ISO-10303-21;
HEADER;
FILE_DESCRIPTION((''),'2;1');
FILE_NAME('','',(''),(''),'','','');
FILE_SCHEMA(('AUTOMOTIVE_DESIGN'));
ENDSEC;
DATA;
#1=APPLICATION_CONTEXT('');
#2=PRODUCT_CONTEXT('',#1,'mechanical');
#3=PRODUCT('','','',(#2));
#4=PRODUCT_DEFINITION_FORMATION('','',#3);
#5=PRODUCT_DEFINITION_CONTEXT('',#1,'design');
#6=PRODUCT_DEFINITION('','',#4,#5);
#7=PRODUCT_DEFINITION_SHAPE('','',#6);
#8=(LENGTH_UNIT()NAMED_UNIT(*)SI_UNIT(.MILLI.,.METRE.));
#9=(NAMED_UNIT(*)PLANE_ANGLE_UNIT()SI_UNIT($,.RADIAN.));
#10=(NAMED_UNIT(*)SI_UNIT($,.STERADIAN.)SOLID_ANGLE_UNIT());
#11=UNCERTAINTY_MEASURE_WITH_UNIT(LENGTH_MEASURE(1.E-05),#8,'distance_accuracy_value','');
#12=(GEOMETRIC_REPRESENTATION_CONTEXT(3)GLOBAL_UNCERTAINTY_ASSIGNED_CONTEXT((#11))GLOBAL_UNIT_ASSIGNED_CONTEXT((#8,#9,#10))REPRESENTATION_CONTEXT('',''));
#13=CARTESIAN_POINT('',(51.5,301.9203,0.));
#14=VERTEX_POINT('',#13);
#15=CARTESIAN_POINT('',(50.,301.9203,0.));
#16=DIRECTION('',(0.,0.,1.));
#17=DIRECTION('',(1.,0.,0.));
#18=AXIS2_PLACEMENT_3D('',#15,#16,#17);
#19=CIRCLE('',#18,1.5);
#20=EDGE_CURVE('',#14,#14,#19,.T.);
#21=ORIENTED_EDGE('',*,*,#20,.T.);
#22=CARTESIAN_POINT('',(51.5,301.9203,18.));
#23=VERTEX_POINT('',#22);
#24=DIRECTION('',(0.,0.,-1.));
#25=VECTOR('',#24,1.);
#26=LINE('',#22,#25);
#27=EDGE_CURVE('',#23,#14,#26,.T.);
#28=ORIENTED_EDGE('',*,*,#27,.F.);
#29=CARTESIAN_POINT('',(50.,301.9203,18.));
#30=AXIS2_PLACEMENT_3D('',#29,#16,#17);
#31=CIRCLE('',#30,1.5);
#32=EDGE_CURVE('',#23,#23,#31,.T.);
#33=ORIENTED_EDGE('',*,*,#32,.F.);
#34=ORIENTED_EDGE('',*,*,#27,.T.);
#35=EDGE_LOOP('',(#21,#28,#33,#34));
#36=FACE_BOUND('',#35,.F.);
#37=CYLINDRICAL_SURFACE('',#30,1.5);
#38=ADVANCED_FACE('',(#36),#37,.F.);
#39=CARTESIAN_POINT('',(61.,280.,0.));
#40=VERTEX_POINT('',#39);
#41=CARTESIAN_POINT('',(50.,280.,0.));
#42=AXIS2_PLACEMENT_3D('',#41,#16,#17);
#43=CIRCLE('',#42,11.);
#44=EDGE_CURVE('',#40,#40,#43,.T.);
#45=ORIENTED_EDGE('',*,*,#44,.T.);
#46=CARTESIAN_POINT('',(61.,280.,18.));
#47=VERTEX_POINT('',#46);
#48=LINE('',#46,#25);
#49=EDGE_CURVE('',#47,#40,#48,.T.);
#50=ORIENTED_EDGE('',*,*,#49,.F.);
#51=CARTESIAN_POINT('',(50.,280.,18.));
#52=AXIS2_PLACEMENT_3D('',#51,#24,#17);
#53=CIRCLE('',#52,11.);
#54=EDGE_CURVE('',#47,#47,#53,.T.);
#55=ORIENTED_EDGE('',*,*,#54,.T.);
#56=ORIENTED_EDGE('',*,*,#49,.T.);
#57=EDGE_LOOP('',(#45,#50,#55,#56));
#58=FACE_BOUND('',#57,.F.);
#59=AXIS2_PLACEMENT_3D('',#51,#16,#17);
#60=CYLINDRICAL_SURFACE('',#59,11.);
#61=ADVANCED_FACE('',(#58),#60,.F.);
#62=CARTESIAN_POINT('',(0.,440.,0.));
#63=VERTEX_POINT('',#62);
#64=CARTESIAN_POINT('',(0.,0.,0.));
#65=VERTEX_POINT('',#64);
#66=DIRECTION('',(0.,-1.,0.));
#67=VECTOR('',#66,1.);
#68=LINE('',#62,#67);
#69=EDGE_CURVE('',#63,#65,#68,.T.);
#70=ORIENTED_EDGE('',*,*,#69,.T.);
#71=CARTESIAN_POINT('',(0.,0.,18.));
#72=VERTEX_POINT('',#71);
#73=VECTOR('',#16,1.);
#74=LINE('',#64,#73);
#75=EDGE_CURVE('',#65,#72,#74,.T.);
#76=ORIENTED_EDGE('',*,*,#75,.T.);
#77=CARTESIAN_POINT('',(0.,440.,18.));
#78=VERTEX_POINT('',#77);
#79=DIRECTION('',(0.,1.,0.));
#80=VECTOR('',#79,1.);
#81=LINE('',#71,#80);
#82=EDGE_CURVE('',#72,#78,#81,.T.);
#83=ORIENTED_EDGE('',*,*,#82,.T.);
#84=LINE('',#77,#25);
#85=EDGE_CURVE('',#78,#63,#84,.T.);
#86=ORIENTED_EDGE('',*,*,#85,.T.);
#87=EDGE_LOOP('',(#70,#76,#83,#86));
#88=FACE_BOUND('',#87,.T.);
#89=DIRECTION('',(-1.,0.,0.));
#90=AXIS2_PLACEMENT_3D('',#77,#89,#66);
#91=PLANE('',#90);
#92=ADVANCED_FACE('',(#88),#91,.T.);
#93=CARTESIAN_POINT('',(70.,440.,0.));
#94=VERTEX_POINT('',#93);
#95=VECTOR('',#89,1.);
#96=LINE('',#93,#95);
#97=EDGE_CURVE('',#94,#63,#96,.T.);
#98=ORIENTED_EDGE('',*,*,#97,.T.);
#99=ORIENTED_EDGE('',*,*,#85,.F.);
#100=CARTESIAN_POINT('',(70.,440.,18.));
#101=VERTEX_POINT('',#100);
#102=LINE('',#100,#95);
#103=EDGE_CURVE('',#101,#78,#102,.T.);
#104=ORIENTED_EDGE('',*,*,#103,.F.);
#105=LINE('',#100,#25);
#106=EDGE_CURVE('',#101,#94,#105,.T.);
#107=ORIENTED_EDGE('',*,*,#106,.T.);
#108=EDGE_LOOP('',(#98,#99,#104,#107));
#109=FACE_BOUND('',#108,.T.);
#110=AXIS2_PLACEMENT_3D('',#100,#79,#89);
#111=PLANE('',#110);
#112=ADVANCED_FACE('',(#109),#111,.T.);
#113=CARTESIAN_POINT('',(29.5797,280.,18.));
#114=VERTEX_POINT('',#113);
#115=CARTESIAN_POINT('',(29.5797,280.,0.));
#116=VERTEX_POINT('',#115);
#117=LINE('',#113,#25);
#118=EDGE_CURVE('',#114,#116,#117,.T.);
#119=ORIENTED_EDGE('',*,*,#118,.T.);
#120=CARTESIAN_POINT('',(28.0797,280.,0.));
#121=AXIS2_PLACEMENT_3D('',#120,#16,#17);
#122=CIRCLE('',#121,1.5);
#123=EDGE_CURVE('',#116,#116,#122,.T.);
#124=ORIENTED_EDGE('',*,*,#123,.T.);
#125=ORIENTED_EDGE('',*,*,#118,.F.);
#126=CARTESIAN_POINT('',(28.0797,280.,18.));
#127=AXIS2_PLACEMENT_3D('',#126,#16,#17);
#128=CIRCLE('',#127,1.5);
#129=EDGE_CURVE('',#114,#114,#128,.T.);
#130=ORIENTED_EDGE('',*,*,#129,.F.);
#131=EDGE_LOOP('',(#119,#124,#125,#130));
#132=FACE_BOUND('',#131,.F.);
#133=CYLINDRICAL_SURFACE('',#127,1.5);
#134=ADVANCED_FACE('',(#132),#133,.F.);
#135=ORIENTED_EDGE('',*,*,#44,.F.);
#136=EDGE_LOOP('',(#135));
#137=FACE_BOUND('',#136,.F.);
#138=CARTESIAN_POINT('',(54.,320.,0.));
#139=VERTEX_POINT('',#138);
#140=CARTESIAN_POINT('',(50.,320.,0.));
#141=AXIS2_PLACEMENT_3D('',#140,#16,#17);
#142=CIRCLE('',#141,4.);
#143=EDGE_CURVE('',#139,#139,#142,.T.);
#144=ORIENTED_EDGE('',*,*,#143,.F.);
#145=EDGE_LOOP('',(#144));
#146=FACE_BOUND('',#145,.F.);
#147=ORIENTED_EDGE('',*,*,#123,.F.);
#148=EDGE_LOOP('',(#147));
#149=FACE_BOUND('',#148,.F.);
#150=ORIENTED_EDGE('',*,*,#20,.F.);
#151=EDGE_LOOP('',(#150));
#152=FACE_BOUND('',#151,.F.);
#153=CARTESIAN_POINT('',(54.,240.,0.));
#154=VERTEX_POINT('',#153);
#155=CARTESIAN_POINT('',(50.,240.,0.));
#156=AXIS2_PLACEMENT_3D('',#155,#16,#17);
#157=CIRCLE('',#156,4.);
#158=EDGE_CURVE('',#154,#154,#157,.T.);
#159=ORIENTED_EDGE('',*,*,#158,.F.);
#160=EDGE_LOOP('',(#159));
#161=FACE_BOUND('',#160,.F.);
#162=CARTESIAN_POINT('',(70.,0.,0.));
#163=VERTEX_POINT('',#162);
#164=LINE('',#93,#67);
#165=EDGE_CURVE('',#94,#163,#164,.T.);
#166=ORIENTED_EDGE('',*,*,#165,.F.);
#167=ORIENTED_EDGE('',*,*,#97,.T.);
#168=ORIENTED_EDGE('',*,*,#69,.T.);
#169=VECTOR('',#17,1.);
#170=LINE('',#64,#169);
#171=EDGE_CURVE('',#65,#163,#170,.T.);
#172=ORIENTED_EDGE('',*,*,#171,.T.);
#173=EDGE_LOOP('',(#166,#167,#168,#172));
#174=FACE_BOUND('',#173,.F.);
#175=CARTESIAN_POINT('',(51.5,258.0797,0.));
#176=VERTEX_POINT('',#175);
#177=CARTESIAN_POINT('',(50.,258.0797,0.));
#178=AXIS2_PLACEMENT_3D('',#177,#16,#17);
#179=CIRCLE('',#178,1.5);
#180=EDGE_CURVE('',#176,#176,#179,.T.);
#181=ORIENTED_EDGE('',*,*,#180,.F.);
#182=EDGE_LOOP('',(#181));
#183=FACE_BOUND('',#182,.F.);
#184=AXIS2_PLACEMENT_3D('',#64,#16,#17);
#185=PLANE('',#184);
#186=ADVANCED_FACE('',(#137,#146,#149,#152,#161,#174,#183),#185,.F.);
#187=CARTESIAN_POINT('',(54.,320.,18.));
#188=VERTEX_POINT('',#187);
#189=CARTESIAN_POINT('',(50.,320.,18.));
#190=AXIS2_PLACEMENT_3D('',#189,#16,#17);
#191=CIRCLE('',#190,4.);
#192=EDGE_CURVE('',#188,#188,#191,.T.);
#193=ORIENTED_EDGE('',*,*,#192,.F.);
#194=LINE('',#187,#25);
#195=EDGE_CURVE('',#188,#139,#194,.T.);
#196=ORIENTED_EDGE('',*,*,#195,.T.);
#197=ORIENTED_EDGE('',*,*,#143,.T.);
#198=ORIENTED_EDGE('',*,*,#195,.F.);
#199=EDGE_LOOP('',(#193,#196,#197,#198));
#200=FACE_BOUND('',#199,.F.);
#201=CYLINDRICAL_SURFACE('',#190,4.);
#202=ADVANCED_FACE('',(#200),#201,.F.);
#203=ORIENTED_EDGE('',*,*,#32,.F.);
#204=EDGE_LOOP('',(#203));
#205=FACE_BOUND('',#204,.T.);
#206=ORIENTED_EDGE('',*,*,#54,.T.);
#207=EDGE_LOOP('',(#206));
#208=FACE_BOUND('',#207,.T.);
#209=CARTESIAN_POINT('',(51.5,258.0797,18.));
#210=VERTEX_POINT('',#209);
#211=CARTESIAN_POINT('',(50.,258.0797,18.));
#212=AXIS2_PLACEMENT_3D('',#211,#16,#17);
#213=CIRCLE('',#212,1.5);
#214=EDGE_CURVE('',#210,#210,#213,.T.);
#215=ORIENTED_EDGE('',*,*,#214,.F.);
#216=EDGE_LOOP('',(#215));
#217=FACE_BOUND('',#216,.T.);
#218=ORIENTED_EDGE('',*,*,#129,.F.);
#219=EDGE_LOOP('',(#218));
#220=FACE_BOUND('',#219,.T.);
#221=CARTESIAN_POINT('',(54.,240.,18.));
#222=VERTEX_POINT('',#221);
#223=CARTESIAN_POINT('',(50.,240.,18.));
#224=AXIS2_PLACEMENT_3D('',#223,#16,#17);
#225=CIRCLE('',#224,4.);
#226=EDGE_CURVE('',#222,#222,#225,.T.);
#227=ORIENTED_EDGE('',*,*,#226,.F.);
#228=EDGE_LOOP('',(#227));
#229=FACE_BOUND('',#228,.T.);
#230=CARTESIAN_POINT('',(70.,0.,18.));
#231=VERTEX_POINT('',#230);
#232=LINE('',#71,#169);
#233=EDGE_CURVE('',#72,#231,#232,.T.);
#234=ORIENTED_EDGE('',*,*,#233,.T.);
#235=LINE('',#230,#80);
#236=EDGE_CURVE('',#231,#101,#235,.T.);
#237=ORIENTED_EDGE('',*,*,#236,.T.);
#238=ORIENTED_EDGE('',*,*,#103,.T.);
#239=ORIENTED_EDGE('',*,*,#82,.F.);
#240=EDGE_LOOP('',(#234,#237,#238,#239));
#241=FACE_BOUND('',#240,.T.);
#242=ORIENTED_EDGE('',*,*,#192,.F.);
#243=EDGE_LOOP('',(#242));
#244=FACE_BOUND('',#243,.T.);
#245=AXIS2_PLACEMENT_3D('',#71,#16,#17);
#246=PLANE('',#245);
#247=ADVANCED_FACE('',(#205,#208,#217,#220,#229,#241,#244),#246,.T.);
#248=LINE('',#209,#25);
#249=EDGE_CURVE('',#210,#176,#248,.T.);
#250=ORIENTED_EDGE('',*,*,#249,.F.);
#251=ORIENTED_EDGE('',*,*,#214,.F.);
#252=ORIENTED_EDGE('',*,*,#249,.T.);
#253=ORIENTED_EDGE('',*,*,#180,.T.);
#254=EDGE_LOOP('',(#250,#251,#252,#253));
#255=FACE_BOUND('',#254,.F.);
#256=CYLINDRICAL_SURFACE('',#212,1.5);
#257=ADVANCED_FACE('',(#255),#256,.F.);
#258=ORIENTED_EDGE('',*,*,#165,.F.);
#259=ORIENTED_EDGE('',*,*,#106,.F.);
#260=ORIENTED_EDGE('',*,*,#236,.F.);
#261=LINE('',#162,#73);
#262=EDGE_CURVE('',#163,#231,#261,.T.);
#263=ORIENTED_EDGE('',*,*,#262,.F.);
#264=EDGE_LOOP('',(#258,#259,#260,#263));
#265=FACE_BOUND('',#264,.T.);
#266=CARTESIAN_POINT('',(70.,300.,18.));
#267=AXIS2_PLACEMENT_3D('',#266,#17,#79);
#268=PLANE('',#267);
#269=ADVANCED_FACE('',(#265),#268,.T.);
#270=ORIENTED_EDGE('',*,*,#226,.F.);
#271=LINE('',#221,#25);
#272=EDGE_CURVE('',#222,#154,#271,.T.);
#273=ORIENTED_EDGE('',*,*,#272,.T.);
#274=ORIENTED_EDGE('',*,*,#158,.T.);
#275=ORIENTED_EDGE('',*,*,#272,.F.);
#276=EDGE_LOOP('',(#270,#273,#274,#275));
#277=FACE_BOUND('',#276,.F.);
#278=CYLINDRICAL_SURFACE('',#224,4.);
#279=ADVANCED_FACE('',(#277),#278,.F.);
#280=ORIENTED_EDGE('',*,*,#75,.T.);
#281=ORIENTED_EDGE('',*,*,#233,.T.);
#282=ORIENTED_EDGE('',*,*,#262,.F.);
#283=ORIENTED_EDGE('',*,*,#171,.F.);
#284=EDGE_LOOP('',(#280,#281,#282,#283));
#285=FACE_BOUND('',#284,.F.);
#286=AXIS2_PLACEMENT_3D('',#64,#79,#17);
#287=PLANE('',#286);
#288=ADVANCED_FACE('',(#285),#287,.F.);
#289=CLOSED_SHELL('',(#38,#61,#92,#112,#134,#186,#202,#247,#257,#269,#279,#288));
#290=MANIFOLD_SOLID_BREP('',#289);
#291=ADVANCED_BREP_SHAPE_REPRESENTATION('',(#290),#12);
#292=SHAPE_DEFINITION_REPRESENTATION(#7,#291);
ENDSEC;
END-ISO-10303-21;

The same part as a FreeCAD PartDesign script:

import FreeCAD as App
import Part
import Sketcher

V = App.Vector


def add_polygon(sketch, points):
    """Adds a closed chain of lines whose ends are joined by coincident constraints."""
    first, n = sketch.GeometryCount, len(points)
    for a, b in zip(points, points[1:] + points[:1]):
        sketch.addGeometry(Part.LineSegment(App.Vector(*a, 0), App.Vector(*b, 0)), False)
    for i in range(n):
        sketch.addConstraint(Sketcher.Constraint("Coincident", first + i, 2, first + (i + 1) % n, 1))

doc = App.newDocument("Part")
body = doc.addObject("PartDesign::Body", "Body")

# Sketch on XY plane
sketch1 = body.newObject("Sketcher::SketchObject", "Sketch")
sketch1.AttachmentSupport = (doc.getObject("XY_Plane"), [""])
sketch1.MapMode = "FlatFace"
add_polygon(sketch1, [(0, 300), (0, 0), (70, 0), (70, 300)])  # lines 0-3
sketch1.addConstraint([
    Sketcher.Constraint("Vertical", 0),
    Sketcher.Constraint("Horizontal", 1),
    Sketcher.Constraint("Vertical", 2),
    Sketcher.Constraint("Horizontal", 3),
    Sketcher.Constraint("Coincident", 0, 2, -1, 1),
    Sketcher.Constraint("DistanceX", 1, 1, 1, 2, 70.0),
    Sketcher.Constraint("DistanceY", 0, 2, 0, 1, 300.0),
])
pad1 = body.newObject("PartDesign::Pad", "Pad")
pad1.Profile = sketch1
pad1.Length = 18

# Sketch on XY plane
sketch2 = body.newObject("Sketcher::SketchObject", "Sketch001")
sketch2.AttachmentSupport = (doc.getObject("XY_Plane"), [""])
sketch2.MapMode = "FlatFace"
sketch2.AttachmentOffset = App.Placement(V(0, 0, 18), App.Rotation())
sketch2.addGeometry([
    Part.Circle(V(50, 280, 0), V(0, 0, 1), 11),
    Part.Circle(V(50, 258.1, 0), V(0, 0, 1), 1.5),
    Part.Circle(V(28.1, 280, 0), V(0, 0, 1), 1.5),
], False)
sketch2.addConstraint([
    Sketcher.Constraint("Equal", 1, 2),
    Sketcher.Constraint("Horizontal", 0, 3, 2, 3),
    Sketcher.Constraint("Vertical", 0, 3, 1, 3),
    Sketcher.Constraint("Diameter", 0, 22.0),
    Sketcher.Constraint("Diameter", 1, 3.0),
    Sketcher.Constraint("DistanceX", -1, 1, 0, 3, 50.0),
    Sketcher.Constraint("DistanceY", -1, 1, 0, 3, 280.0),
    Sketcher.Constraint("DistanceY", -1, 1, 1, 3, 258.0797),
    Sketcher.Constraint("DistanceX", -1, 1, 2, 3, 28.0797),
])
pocket1 = body.newObject("PartDesign::Pocket", "Pocket")
pocket1.Profile = sketch2
pocket1.Length = 18

# Sketch on XY plane
sketch3 = body.newObject("Sketcher::SketchObject", "Sketch002")
sketch3.AttachmentSupport = (doc.getObject("XY_Plane"), [""])
sketch3.MapMode = "FlatFace"
sketch3.AttachmentOffset = App.Placement(V(0, 0, 18), App.Rotation())
add_polygon(sketch3, [(0, 300), (70, 300), (70, 440), (0, 440)])  # lines 0-3
sketch3.addConstraint([
    Sketcher.Constraint("Horizontal", 0),
    Sketcher.Constraint("Vertical", 1),
    Sketcher.Constraint("Horizontal", 2),
    Sketcher.Constraint("Vertical", 3),
    Sketcher.Constraint("PointOnObject", 2, 2, -2),
    Sketcher.Constraint("DistanceX", 0, 1, 0, 2, 70.0),
    Sketcher.Constraint("DistanceY", 1, 1, 1, 2, 140.0),
    Sketcher.Constraint("DistanceY", -1, 1, 0, 2, 300.0),
])
pad2 = body.newObject("PartDesign::Pad", "Pad001")
pad2.Profile = sketch3
pad2.Length = 18
pad2.Reversed = True

# Sketch on XY plane
sketch4 = body.newObject("Sketcher::SketchObject", "Sketch003")
sketch4.AttachmentSupport = (doc.getObject("XY_Plane"), [""])
sketch4.MapMode = "FlatFace"
sketch4.AttachmentOffset = App.Placement(V(0, 0, 18), App.Rotation())
sketch4.addGeometry(Part.Circle(V(50, 301.9, 0), V(0, 0, 1), 1.5), False)
sketch4.addConstraint([
    Sketcher.Constraint("Diameter", 0, 3.0),
    Sketcher.Constraint("DistanceX", -1, 1, 0, 3, 50.0),
    Sketcher.Constraint("DistanceY", -1, 1, 0, 3, 301.9203),
])
pocket2 = body.newObject("PartDesign::Pocket", "Pocket001")
pocket2.Profile = sketch4
pocket2.Length = 18

# Sketch on XY plane
sketch5 = body.newObject("Sketcher::SketchObject", "Sketch004")
sketch5.AttachmentSupport = (doc.getObject("XY_Plane"), [""])
sketch5.MapMode = "FlatFace"
sketch5.AttachmentOffset = App.Placement(V(0, 0, 18), App.Rotation())
sketch5.addGeometry([
    Part.Circle(V(50, 240, 0), V(0, 0, 1), 4),
    Part.Circle(V(50, 320, 0), V(0, 0, 1), 4),
], False)
sketch5.addConstraint([
    Sketcher.Constraint("Equal", 0, 1),
    Sketcher.Constraint("Vertical", 0, 3, 1, 3),
    Sketcher.Constraint("Diameter", 0, 8.0),
    Sketcher.Constraint("DistanceX", -1, 1, 0, 3, 50.0),
    Sketcher.Constraint("DistanceY", -1, 1, 0, 3, 240.0),
    Sketcher.Constraint("DistanceY", -1, 1, 1, 3, 320.0),
])
pocket3 = body.newObject("PartDesign::Pocket", "Pocket002")
pocket3.Profile = sketch5
pocket3.Length = 18

doc.recompute()
